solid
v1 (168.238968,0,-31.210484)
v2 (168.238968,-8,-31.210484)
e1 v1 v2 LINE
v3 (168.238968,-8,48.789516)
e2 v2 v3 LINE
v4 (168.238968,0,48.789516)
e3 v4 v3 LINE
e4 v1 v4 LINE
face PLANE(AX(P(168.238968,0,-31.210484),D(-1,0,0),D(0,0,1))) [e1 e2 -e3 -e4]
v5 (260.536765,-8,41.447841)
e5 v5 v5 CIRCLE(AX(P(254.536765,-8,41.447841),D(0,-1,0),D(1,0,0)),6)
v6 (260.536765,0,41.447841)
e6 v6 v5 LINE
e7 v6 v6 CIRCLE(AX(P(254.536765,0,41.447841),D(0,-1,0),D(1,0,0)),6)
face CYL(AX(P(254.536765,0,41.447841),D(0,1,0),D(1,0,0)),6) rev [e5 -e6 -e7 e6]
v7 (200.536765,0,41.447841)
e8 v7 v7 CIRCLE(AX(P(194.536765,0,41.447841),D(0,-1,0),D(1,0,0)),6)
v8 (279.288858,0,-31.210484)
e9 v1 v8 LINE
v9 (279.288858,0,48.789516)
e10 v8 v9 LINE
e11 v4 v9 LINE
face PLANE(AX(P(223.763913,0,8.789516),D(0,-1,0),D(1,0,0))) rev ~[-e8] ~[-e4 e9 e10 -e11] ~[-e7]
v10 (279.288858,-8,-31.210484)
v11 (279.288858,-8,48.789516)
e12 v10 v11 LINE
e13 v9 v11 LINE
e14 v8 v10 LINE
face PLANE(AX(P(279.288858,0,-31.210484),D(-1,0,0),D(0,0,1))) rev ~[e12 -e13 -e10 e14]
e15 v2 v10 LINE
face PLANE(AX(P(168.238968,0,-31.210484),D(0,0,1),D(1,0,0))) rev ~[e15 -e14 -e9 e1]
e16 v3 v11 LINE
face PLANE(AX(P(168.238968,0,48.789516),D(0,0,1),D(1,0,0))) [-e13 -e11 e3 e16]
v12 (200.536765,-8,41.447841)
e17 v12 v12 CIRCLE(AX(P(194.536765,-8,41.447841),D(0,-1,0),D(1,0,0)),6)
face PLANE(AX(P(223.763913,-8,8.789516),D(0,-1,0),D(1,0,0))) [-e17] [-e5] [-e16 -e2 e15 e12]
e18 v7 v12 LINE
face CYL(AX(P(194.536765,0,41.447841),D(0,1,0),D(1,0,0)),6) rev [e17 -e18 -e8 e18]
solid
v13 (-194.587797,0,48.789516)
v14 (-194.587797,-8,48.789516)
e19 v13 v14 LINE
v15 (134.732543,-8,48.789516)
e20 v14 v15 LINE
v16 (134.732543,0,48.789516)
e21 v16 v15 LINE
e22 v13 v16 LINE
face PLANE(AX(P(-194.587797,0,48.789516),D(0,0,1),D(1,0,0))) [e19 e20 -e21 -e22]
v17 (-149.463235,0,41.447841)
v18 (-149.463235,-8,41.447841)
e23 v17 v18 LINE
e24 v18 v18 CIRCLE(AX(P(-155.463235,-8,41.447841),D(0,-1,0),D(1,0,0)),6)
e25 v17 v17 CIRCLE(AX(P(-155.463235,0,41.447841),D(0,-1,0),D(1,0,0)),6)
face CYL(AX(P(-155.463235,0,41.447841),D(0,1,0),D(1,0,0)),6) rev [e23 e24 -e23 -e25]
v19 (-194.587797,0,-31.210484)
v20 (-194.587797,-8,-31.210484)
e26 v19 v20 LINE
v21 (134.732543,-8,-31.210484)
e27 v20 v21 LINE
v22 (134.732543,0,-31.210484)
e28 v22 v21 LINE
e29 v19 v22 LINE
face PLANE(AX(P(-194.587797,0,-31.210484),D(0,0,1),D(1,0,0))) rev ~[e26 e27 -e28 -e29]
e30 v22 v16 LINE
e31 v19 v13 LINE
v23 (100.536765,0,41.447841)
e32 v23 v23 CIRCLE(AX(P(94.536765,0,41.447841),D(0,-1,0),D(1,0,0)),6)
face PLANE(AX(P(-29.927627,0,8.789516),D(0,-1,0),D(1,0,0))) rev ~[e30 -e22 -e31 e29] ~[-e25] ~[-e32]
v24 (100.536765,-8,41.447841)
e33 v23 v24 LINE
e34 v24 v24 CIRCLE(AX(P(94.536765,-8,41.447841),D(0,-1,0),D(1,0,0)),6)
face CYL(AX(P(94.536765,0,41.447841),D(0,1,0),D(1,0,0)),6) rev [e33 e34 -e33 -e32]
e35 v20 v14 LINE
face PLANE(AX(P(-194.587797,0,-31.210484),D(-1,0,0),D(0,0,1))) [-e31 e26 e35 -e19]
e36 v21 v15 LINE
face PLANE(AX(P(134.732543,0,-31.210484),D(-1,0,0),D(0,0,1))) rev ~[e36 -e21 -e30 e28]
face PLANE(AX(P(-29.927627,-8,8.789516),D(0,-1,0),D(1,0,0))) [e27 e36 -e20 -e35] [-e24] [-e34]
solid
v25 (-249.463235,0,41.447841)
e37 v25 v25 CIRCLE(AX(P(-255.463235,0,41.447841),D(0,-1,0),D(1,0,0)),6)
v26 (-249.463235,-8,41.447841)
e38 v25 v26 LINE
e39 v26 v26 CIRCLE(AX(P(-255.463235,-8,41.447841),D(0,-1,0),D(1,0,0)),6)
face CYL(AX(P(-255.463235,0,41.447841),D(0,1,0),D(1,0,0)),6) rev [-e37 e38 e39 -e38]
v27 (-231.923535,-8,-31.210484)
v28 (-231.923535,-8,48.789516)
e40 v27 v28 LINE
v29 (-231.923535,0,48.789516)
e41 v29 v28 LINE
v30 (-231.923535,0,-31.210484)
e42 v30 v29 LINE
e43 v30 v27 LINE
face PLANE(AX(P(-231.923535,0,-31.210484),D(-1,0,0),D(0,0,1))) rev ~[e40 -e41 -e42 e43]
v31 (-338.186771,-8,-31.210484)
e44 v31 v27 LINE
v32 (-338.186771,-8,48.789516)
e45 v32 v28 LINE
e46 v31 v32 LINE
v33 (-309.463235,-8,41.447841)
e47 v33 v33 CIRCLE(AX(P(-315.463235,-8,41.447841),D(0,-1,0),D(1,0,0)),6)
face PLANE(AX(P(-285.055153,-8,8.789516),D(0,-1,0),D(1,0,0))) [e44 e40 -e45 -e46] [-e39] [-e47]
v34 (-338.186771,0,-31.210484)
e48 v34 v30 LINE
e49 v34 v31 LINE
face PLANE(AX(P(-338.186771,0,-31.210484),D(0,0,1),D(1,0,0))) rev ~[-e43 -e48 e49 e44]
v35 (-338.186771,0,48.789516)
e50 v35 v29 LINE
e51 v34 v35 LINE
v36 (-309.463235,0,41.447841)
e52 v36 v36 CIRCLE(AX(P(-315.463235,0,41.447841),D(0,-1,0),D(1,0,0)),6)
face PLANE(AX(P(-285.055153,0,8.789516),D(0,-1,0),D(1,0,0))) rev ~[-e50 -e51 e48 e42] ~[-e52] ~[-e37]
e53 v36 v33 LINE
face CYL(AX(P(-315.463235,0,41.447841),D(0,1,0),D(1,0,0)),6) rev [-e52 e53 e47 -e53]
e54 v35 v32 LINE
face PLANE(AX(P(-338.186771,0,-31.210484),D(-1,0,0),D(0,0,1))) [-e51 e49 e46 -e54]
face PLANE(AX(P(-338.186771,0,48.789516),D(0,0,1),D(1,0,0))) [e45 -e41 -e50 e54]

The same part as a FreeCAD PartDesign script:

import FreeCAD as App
import Part
import Sketcher

V = App.Vector


def add_polygon(sketch, points):
    """Adds a closed chain of lines whose ends are joined by coincident constraints."""
    first, n = sketch.GeometryCount, len(points)
    for a, b in zip(points, points[1:] + points[:1]):
        sketch.addGeometry(Part.LineSegment(App.Vector(*a, 0), App.Vector(*b, 0)), False)
    for i in range(n):
        sketch.addConstraint(Sketcher.Constraint("Coincident", first + i, 2, first + (i + 1) % n, 1))

doc = App.newDocument("Part")
params = doc.addObject("Spreadsheet::Sheet", "Params")
for row, (alias, value) in enumerate([
    ("sketch1_diameter", "12 mm"),
    ("sketch1_height", "80 mm"),
    ("pad1_length", "8 mm"),
], start=1):
    params.set(f"A{row}", alias)
    params.set(f"B{row}", "=" + value)
    params.setAlias(f"B{row}", alias)

body = doc.addObject("PartDesign::Body", "Body")
body.AllowCompound = True

# Sketch on XZ plane
sketch1 = body.newObject("Sketcher::SketchObject", "Sketch")
sketch1.AttachmentSupport = (doc.getObject("XZ_Plane"), [""])
sketch1.MapMode = "FlatFace"
add_polygon(sketch1, [(-338.186771, 48.789516), (-338.186771, -31.210484), (-231.923535, -31.210484), (-231.923535, 48.789516)])  # lines 0-3
sketch1.addGeometry(Part.Circle(V(-315.463235, 41.447841, 0), V(0, 0, 1), 6), False)  # 4
sketch1.addGeometry(Part.Circle(V(-255.463235, 41.447841, 0), V(0, 0, 1), 6), False)  # 5
add_polygon(sketch1, [(-194.587797, 48.789516), (-194.587797, -31.210484), (134.732543, -31.210484), (134.732543, 48.789516)])  # lines 6-9
sketch1.addGeometry(Part.Circle(V(-155.463235, 41.447841, 0), V(0, 0, 1), 6), False)  # 10
sketch1.addGeometry(Part.Circle(V(94.536765, 41.447841, 0), V(0, 0, 1), 6), False)  # 11
add_polygon(sketch1, [(168.238968, 48.789516), (168.238968, -31.210484), (279.288858, -31.210484), (279.288858, 48.789516)])  # lines 12-15
sketch1.addGeometry(Part.Circle(V(194.536765, 41.447841, 0), V(0, 0, 1), 6), False)  # 16
sketch1.addGeometry(Part.Circle(V(254.536765, 41.447841, 0), V(0, 0, 1), 6), False)  # 17
sketch1.addConstraint([
    Sketcher.Constraint("Vertical", 0),
    Sketcher.Constraint("Horizontal", 1),
    Sketcher.Constraint("Vertical", 2),
    Sketcher.Constraint("Horizontal", 3),
    Sketcher.Constraint("Vertical", 6),
    Sketcher.Constraint("Horizontal", 7),
    Sketcher.Constraint("Vertical", 8),
    Sketcher.Constraint("Horizontal", 9),
    Sketcher.Constraint("Vertical", 12),
    Sketcher.Constraint("Horizontal", 13),
    Sketcher.Constraint("Vertical", 14),
    Sketcher.Constraint("Horizontal", 15),
    Sketcher.Constraint("Equal", 4, 5),
    Sketcher.Constraint("Equal", 5, 10),
    Sketcher.Constraint("Equal", 10, 11),
    Sketcher.Constraint("Equal", 11, 16),
    Sketcher.Constraint("Equal", 16, 17),
    Sketcher.Constraint("Horizontal", 4, 3, 5, 3),
    Sketcher.Constraint("Horizontal", 5, 3, 10, 3),
    Sketcher.Constraint("Horizontal", 10, 3, 11, 3),
    Sketcher.Constraint("Horizontal", 11, 3, 16, 3),
    Sketcher.Constraint("Horizontal", 16, 3, 17, 3),
    Sketcher.Constraint("Horizontal", 1, 2, 6, 2),
    Sketcher.Constraint("Horizontal", 3, 2, 8, 2),
    Sketcher.Constraint("Horizontal", 7, 2, 12, 2),
    Sketcher.Constraint("Horizontal", 9, 2, 14, 2),
    Sketcher.Constraint("Diameter", 4, 12.0),
    Sketcher.Constraint("DistanceY", 0, 2, 0, 1, 80.0),
    Sketcher.Constraint("DistanceX", 4, 3, 5, 3, 60.0),
    Sketcher.Constraint("DistanceX", 5, 3, 10, 3, 100.0),
    Sketcher.Constraint("DistanceX", 10, 3, 11, 3, 250.0),
    Sketcher.Constraint("DistanceX", 11, 3, 16, 3, 100.0),
    Sketcher.Constraint("DistanceX", 16, 3, 17, 3, 60.0),
    Sketcher.Constraint("DistanceX", 7, 1, 7, 2, 329.320341),
    Sketcher.Constraint("DistanceX", 13, 1, 13, 2, 111.04989),
    Sketcher.Constraint("DistanceX", 5, 3, 1, 2, 23.5397),
    Sketcher.Constraint("DistanceX", 1, 1, 1, 2, 106.263236),
    Sketcher.Constraint("DistanceY", -1, 1, 4, 3, 41.447841),
    Sketcher.Constraint("DistanceX", 0, 2, -1, 1, 338.186771),
    Sketcher.Constraint("DistanceX", -1, 1, 12, 2, 168.238968),
    Sketcher.Constraint("DistanceX", 11, 3, 7, 2, 40.195778),
    Sketcher.Constraint("DistanceY", 0, 2, -1, 1, 31.210484),
])
sketch1.setExpression("Constraints[38]", "Params.sketch1_diameter")
sketch1.setExpression("Constraints[39]", "Params.sketch1_height")
pad1 = body.newObject("PartDesign::Pad", "Pad")
pad1.Profile = sketch1
pad1.setExpression("Length", "Params.pad1_length")

doc.recompute()
